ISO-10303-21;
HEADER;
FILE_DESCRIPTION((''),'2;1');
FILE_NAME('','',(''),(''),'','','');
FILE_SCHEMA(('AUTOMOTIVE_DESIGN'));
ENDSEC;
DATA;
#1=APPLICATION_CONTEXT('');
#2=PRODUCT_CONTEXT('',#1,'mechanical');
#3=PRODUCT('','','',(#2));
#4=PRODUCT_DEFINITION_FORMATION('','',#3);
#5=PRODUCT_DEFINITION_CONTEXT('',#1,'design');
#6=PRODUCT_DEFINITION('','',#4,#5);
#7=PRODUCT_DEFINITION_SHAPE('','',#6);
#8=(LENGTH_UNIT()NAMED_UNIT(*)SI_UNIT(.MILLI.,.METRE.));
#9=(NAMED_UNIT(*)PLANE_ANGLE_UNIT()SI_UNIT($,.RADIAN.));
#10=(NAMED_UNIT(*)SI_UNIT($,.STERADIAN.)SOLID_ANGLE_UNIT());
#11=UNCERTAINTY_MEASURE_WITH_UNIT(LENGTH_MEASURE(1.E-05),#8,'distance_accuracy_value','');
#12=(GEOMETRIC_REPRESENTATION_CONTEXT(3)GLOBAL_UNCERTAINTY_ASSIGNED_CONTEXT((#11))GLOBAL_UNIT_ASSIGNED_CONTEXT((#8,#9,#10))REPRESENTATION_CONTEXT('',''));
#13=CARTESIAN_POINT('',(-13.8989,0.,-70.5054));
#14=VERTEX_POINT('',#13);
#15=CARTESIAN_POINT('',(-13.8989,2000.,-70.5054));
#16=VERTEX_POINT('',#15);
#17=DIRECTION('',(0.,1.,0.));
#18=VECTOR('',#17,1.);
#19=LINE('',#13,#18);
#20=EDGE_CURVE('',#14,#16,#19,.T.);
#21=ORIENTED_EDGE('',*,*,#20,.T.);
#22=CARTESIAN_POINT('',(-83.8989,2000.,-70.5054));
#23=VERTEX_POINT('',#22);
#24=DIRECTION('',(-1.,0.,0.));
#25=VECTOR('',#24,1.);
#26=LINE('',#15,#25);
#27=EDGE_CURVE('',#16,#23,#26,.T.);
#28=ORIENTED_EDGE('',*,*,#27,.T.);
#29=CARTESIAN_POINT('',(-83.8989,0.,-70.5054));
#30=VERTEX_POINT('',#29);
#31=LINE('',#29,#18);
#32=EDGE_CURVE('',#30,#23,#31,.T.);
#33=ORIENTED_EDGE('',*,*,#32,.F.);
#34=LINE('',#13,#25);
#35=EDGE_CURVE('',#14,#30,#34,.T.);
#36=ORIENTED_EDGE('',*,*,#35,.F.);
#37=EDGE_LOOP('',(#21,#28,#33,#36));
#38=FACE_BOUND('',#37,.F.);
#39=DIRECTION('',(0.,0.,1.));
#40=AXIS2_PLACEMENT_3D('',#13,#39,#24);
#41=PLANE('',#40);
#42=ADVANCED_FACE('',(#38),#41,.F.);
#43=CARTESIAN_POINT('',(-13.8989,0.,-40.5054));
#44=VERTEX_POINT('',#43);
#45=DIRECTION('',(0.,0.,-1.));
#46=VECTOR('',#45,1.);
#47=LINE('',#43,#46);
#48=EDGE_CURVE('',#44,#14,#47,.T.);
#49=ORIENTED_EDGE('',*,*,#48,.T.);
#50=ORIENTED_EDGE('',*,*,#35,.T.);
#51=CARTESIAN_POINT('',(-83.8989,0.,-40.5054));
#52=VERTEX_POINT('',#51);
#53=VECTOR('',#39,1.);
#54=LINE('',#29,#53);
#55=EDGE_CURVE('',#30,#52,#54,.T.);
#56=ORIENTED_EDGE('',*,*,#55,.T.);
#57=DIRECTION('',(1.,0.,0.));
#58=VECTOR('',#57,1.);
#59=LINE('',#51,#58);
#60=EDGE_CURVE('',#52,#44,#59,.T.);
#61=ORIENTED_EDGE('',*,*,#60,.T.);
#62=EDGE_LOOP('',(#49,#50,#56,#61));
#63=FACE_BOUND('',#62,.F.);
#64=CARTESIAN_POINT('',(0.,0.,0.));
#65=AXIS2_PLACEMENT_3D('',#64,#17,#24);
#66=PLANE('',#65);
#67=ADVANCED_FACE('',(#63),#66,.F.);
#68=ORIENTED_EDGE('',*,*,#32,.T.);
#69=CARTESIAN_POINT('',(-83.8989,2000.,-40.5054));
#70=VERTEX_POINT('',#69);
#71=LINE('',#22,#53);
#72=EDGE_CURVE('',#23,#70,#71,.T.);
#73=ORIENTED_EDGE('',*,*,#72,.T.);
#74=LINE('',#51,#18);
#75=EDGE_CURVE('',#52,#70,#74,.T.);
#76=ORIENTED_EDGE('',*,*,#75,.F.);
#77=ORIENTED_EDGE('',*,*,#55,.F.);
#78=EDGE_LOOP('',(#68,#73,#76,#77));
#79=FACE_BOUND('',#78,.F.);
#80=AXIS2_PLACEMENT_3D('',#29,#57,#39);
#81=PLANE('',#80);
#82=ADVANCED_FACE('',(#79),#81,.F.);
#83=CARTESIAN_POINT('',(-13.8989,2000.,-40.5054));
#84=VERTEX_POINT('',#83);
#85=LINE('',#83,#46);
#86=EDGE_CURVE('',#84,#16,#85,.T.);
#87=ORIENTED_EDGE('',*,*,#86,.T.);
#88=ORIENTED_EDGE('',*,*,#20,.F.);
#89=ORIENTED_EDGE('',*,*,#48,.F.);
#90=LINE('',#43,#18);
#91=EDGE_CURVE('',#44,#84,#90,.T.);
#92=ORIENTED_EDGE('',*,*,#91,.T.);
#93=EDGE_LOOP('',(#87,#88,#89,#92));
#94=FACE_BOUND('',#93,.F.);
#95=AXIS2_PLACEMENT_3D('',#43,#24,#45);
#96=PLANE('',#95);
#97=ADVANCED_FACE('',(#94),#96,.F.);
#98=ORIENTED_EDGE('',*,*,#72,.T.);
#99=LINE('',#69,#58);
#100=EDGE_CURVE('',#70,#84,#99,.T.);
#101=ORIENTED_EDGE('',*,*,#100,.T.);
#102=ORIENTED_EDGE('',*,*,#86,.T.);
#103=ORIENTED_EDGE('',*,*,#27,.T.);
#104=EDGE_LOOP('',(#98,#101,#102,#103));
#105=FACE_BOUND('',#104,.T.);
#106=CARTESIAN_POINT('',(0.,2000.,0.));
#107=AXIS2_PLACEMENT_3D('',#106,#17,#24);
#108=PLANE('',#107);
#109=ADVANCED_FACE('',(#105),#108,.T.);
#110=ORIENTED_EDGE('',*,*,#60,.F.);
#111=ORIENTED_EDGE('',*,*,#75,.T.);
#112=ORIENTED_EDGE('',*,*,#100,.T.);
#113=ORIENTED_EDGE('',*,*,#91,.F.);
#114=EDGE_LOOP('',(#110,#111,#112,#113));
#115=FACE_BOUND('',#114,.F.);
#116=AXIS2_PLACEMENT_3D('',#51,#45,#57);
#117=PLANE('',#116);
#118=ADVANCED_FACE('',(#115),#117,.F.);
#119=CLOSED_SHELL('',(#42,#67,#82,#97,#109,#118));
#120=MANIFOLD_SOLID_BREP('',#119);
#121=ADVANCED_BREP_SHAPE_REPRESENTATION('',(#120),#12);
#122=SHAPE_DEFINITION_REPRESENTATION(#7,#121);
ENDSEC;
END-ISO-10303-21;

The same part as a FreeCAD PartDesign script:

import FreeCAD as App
import Part
import Sketcher

V = App.Vector

doc = App.newDocument("Part")
body = doc.addObject("PartDesign::Body", "Body")

sketch1 = body.newObject("Sketcher::SketchObject", "Sketch")
sketch1.AttachmentSupport = (doc.getObject("XZ_Plane"), [""])
sketch1.MapMode = "FlatFace"
sketch1.addGeometry(Part.LineSegment(V(-84, -71, 0), V(-84, -41, 0)), False)
sketch1.addGeometry(Part.LineSegment(V(-84, -41, 0), V(-14, -41, 0)), False)
sketch1.addGeometry(Part.LineSegment(V(-14, -41, 0), V(-14, -71, 0)), False)
sketch1.addGeometry(Part.LineSegment(V(-14, -71, 0), V(-84, -71, 0)), False)
sketch1.addConstraint(Sketcher.Constraint("Coincident", 0, 2, 1, 1))
sketch1.addConstraint(Sketcher.Constraint("Coincident", 1, 2, 2, 1))
sketch1.addConstraint(Sketcher.Constraint("Coincident", 2, 2, 3, 1))
sketch1.addConstraint(Sketcher.Constraint("Coincident", 3, 2, 0, 1))
sketch1.addConstraint(Sketcher.Constraint("Vertical", 0))
sketch1.addConstraint(Sketcher.Constraint("Horizontal", 1))
sketch1.addConstraint(Sketcher.Constraint("Vertical", 2))
sketch1.addConstraint(Sketcher.Constraint("Horizontal", 3))
sketch1.addConstraint(Sketcher.Constraint("DistanceX", 1, 1, 1, 2, 70.0))
sketch1.addConstraint(Sketcher.Constraint("DistanceY", 0, 1, 0, 2, 30.0))
sketch1.addConstraint(Sketcher.Constraint("DistanceX", 0, 2, -1, 1, 83.899))
sketch1.addConstraint(Sketcher.Constraint("DistanceY", 0, 2, -1, 1, 40.5054))
pad1 = body.newObject("PartDesign::Pad", "Pad")
pad1.Profile = sketch1
pad1.Length = 2000
pad1.Reversed = True

doc.recompute()
